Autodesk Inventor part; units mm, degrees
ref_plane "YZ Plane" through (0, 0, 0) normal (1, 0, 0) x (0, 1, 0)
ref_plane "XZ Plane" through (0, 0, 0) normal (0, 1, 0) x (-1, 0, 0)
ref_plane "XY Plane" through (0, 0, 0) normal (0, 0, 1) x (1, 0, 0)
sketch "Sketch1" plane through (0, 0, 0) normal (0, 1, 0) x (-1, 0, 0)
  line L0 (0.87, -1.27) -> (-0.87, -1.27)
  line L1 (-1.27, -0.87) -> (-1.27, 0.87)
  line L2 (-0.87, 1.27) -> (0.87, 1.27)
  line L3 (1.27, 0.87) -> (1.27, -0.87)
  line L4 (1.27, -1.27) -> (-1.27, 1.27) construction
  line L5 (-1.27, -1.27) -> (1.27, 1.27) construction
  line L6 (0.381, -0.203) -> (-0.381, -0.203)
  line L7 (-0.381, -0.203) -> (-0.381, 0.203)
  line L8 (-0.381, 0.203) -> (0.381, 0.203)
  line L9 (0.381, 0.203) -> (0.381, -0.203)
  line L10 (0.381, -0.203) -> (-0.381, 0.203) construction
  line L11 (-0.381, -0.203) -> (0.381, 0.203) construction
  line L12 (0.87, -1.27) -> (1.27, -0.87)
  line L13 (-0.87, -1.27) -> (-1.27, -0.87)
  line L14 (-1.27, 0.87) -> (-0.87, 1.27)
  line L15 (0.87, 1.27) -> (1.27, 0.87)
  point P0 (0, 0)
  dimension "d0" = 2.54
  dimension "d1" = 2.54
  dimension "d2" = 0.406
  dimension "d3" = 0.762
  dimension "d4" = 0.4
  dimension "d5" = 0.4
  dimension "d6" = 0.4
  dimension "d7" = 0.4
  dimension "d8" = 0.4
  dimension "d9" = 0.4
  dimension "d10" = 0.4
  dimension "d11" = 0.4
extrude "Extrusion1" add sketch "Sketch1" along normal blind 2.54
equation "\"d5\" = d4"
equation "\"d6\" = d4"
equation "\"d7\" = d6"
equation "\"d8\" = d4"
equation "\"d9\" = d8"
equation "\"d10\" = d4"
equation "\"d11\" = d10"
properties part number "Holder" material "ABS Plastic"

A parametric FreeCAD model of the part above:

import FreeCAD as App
import Part
import Sketcher

V = App.Vector
Q = App.Units.Quantity

doc = App.newDocument("Part")
body = doc.addObject("PartDesign::Body", "Body")

# Sketch on XZ plane
sketch1 = body.newObject("Sketcher::SketchObject", "Sketch")
sketch1.AttachmentSupport = (doc.getObject("XZ_Plane"), [""])
sketch1.MapMode = "FlatFace"
sketch1.addGeometry([
    Part.LineSegment(V(0.87, -1.27, 0), V(-0.87, -1.27, 0)),  # 0
    Part.LineSegment(V(-0.87, -1.27, 0), V(-1.27, -0.87, 0)),  # 1
    Part.LineSegment(V(-1.27, -0.87, 0), V(-1.27, 0.87, 0)),  # 2
    Part.LineSegment(V(-1.27, 0.87, 0), V(-0.87, 1.27, 0)),  # 3
    Part.LineSegment(V(-0.87, 1.27, 0), V(0.87, 1.27, 0)),  # 4
    Part.LineSegment(V(0.87, 1.27, 0), V(1.27, 0.87, 0)),  # 5
    Part.LineSegment(V(1.27, 0.87, 0), V(1.27, -0.87, 0)),  # 6
    Part.LineSegment(V(1.27, -0.87, 0), V(0.87, -1.27, 0)),  # 7
    Part.LineSegment(V(-0.38, 0.2, 0), V(-0.38, -0.2, 0)),  # 8
    Part.LineSegment(V(-0.38, -0.2, 0), V(0.38, -0.2, 0)),  # 9
    Part.LineSegment(V(0.38, -0.2, 0), V(0.38, 0.2, 0)),  # 10
    Part.LineSegment(V(0.38, 0.2, 0), V(-0.38, 0.2, 0)),  # 11
], False)
sketch1.addConstraint([
    Sketcher.Constraint("Coincident", 0, 2, 1, 1),
    Sketcher.Constraint("Coincident", 1, 2, 2, 1),
    Sketcher.Constraint("Coincident", 2, 2, 3, 1),
    Sketcher.Constraint("Coincident", 3, 2, 4, 1),
    Sketcher.Constraint("Coincident", 4, 2, 5, 1),
    Sketcher.Constraint("Coincident", 5, 2, 6, 1),
    Sketcher.Constraint("Coincident", 6, 2, 7, 1),
    Sketcher.Constraint("Coincident", 7, 2, 0, 1),
    Sketcher.Constraint("Coincident", 8, 2, 9, 1),
    Sketcher.Constraint("Coincident", 9, 2, 10, 1),
    Sketcher.Constraint("Coincident", 10, 2, 11, 1),
    Sketcher.Constraint("Coincident", 11, 2, 8, 1),
    Sketcher.Constraint("Horizontal", 0),
    Sketcher.Constraint("Vertical", 2),
    Sketcher.Constraint("Horizontal", 4),
    Sketcher.Constraint("Vertical", 6),
    Sketcher.Constraint("Vertical", 8),
    Sketcher.Constraint("Horizontal", 9),
    Sketcher.Constraint("Vertical", 10),
    Sketcher.Constraint("Horizontal", 11),
    Sketcher.Constraint("Symmetric", 0, 2, 4, 2, -1, 1),
    Sketcher.Constraint("Symmetric", 1, 2, 5, 2, -1, 1),
    Sketcher.Constraint("Symmetric", 8, 2, 10, 2, -1, 1),
    Sketcher.Constraint("Perpendicular", 1, 3),
    Sketcher.Constraint("Perpendicular", 5, 7),
    Sketcher.Constraint("Horizontal", 2, 2, 5, 2),
    Sketcher.Constraint("Horizontal", 1, 2, 6, 2),
    Sketcher.Constraint("Vertical", 0, 2, 3, 2),
    Sketcher.Constraint("Equal", 4, 2),
    Sketcher.Constraint("DistanceX", 9, 1, 9, 2, Q("0.03 in")),
    Sketcher.Constraint("DistanceY", 0, 2, 3, 2, Q("0.1 in")),
    Sketcher.Constraint("DistanceY", 8, 2, 8, 1, 0.406),
    Sketcher.Constraint("DistanceX", 1, 2, 0, 2, 0.4),
])
pad1 = body.newObject("PartDesign::Pad", "Pad")
pad1.Profile = sketch1
pad1.Length = Q("0.1 in")
pad1.Reversed = True

doc.recompute()
